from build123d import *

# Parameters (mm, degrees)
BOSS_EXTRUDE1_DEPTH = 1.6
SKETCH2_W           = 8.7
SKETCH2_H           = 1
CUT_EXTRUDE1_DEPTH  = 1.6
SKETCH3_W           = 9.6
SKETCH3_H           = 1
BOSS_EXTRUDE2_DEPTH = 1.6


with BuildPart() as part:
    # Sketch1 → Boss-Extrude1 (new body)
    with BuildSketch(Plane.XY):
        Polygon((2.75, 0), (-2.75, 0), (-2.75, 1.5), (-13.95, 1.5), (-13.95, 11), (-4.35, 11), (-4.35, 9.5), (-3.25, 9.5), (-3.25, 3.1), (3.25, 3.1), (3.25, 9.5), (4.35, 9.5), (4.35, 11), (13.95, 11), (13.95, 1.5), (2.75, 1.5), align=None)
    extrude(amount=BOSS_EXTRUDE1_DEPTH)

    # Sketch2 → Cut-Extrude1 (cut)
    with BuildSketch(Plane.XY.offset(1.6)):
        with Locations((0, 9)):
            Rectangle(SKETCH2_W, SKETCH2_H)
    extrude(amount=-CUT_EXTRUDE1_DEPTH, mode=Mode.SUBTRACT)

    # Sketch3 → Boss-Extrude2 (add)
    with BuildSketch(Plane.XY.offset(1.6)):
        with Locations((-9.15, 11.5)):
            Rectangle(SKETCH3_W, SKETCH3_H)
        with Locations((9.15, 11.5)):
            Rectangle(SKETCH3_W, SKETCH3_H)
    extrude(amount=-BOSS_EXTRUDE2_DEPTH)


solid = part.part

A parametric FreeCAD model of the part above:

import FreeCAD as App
import Part
import Sketcher

doc = App.newDocument("Part")
body = doc.addObject("PartDesign::Body", "Body")

sketch1 = body.newObject("Sketcher::SketchObject", "Sketch")
sketch1.AttachmentSupport = (doc.getObject("XY_Plane"), [""])
sketch1.MapMode = "FlatFace"
sketch1.addGeometry(Part.LineSegment(App.Vector(-2.8, 0, 0), App.Vector(2.8, 0, 0)), False)
sketch1.addGeometry(Part.LineSegment(App.Vector(2.8, 0, 0), App.Vector(2.8, 1.5, 0)), False)
sketch1.addGeometry(Part.LineSegment(App.Vector(2.8, 1.5, 0), App.Vector(13.9, 1.5, 0)), False)
sketch1.addGeometry(Part.LineSegment(App.Vector(13.9, 1.5, 0), App.Vector(13.9, 11, 0)), False)
sketch1.addGeometry(Part.LineSegment(App.Vector(13.9, 11, 0), App.Vector(4.3, 11, 0)), False)
sketch1.addGeometry(Part.LineSegment(App.Vector(4.3, 11, 0), App.Vector(4.3, 9.5, 0)), False)
sketch1.addGeometry(Part.LineSegment(App.Vector(4.3, 9.5, 0), App.Vector(3.2, 9.5, 0)), False)
sketch1.addGeometry(Part.LineSegment(App.Vector(3.2, 9.5, 0), App.Vector(3.2, 3.1, 0)), False)
sketch1.addGeometry(Part.LineSegment(App.Vector(3.2, 3.1, 0), App.Vector(-3.2, 3.1, 0)), False)
sketch1.addGeometry(Part.LineSegment(App.Vector(-3.2, 3.1, 0), App.Vector(-3.2, 9.5, 0)), False)
sketch1.addGeometry(Part.LineSegment(App.Vector(-3.2, 9.5, 0), App.Vector(-4.3, 9.5, 0)), False)
sketch1.addGeometry(Part.LineSegment(App.Vector(-4.3, 9.5, 0), App.Vector(-4.3, 11, 0)), False)
sketch1.addGeometry(Part.LineSegment(App.Vector(-4.3, 11, 0), App.Vector(-13.9, 11, 0)), False)
sketch1.addGeometry(Part.LineSegment(App.Vector(-13.9, 11, 0), App.Vector(-13.9, 1.5, 0)), False)
sketch1.addGeometry(Part.LineSegment(App.Vector(-13.9, 1.5, 0), App.Vector(-2.8, 1.5, 0)), False)
sketch1.addGeometry(Part.LineSegment(App.Vector(-2.8, 1.5, 0), App.Vector(-2.8, 0, 0)), False)
sketch1.addConstraint(Sketcher.Constraint("Coincident", 0, 2, 1, 1))
sketch1.addConstraint(Sketcher.Constraint("Coincident", 1, 2, 2, 1))
sketch1.addConstraint(Sketcher.Constraint("Coincident", 2, 2, 3, 1))
sketch1.addConstraint(Sketcher.Constraint("Coincident", 3, 2, 4, 1))
sketch1.addConstraint(Sketcher.Constraint("Coincident", 4, 2, 5, 1))
sketch1.addConstraint(Sketcher.Constraint("Coincident", 5, 2, 6, 1))
sketch1.addConstraint(Sketcher.Constraint("Coincident", 6, 2, 7, 1))
sketch1.addConstraint(Sketcher.Constraint("Coincident", 7, 2, 8, 1))
sketch1.addConstraint(Sketcher.Constraint("Coincident", 8, 2, 9, 1))
sketch1.addConstraint(Sketcher.Constraint("Coincident", 9, 2, 10, 1))
sketch1.addConstraint(Sketcher.Constraint("Coincident", 10, 2, 11, 1))
sketch1.addConstraint(Sketcher.Constraint("Coincident", 11, 2, 12, 1))
sketch1.addConstraint(Sketcher.Constraint("Coincident", 12, 2, 13, 1))
sketch1.addConstraint(Sketcher.Constraint("Coincident", 13, 2, 14, 1))
sketch1.addConstraint(Sketcher.Constraint("Coincident", 14, 2, 15, 1))
sketch1.addConstraint(Sketcher.Constraint("Coincident", 15, 2, 0, 1))
sketch1.addConstraint(Sketcher.Constraint("Horizontal", 0))
sketch1.addConstraint(Sketcher.Constraint("Vertical", 1))
sketch1.addConstraint(Sketcher.Constraint("Horizontal", 2))
sketch1.addConstraint(Sketcher.Constraint("Vertical", 3))
sketch1.addConstraint(Sketcher.Constraint("Horizontal", 4))
sketch1.addConstraint(Sketcher.Constraint("Vertical", 5))
sketch1.addConstraint(Sketcher.Constraint("Horizontal", 6))
sketch1.addConstraint(Sketcher.Constraint("Vertical", 7))
sketch1.addConstraint(Sketcher.Constraint("Horizontal", 8))
sketch1.addConstraint(Sketcher.Constraint("Vertical", 9))
sketch1.addConstraint(Sketcher.Constraint("Horizontal", 10))
sketch1.addConstraint(Sketcher.Constraint("Vertical", 11))
sketch1.addConstraint(Sketcher.Constraint("Horizontal", 12))
sketch1.addConstraint(Sketcher.Constraint("Vertical", 13))
sketch1.addConstraint(Sketcher.Constraint("Horizontal", 14))
sketch1.addConstraint(Sketcher.Constraint("Vertical", 15))
sketch1.addConstraint(Sketcher.Constraint("Symmetric", 0, 2, 15, 2, -1, 1))
sketch1.addConstraint(Sketcher.Constraint("Symmetric", 6, 2, 9, 2, -2))
sketch1.addConstraint(Sketcher.Constraint("Symmetric", 4, 2, 11, 2, -2))
sketch1.addConstraint(Sketcher.Constraint("Symmetric", 2, 2, 13, 2, -2))
sketch1.addConstraint(Sketcher.Constraint("Equal", 1, 5))
sketch1.addConstraint(Sketcher.Constraint("DistanceX", 0, 1, 0, 2, 5.5))
sketch1.addConstraint(Sketcher.Constraint("DistanceX", 2, 1, 2, 2, 11.2))
sketch1.addConstraint(Sketcher.Constraint("DistanceX", 4, 2, 4, 1, 9.6))
sketch1.addConstraint(Sketcher.Constraint("DistanceX", 6, 2, 6, 1, 1.1))
sketch1.addConstraint(Sketcher.Constraint("DistanceY", 1, 1, 1, 2, 1.5))
sketch1.addConstraint(Sketcher.Constraint("DistanceY", 3, 1, 3, 2, 9.5))
sketch1.addConstraint(Sketcher.Constraint("DistanceY", 7, 2, 7, 1, 6.4))
pad1 = body.newObject("PartDesign::Pad", "Pad")
pad1.Profile = sketch1
pad1.Length = 1.6

sketch2 = body.newObject("Sketcher::SketchObject", "Sketch001")
sketch2.AttachmentSupport = (doc.getObject("XY_Plane"), [""])
sketch2.MapMode = "FlatFace"
sketch2.AttachmentOffset = App.Placement(App.Vector(0, 0, 1.6), App.Rotation())
sketch2.addGeometry(Part.LineSegment(App.Vector(-4.3, 9.5, 0), App.Vector(-4.3, 8.5, 0)), False)
sketch2.addGeometry(Part.LineSegment(App.Vector(-4.3, 8.5, 0), App.Vector(4.3, 8.5, 0)), False)
sketch2.addGeometry(Part.LineSegment(App.Vector(4.3, 8.5, 0), App.Vector(4.3, 9.5, 0)), False)
sketch2.addGeometry(Part.LineSegment(App.Vector(4.3, 9.5, 0), App.Vector(-4.3, 9.5, 0)), False)
sketch2.addConstraint(Sketcher.Constraint("Coincident", 0, 2, 1, 1))
sketch2.addConstraint(Sketcher.Constraint("Coincident", 1, 2, 2, 1))
sketch2.addConstraint(Sketcher.Constraint("Coincident", 2, 2, 3, 1))
sketch2.addConstraint(Sketcher.Constraint("Coincident", 3, 2, 0, 1))
sketch2.addConstraint(Sketcher.Constraint("Vertical", 0))
sketch2.addConstraint(Sketcher.Constraint("Horizontal", 1))
sketch2.addConstraint(Sketcher.Constraint("Vertical", 2))
sketch2.addConstraint(Sketcher.Constraint("Horizontal", 3))
sketch2.addConstraint(Sketcher.Constraint("DistanceY", 0, 2, 0, 1, 1.0))
sketch2.addConstraint(Sketcher.Constraint("DistanceX", 1, 1, 1, 2, 8.7))
sketch2.addConstraint(Sketcher.Constraint("DistanceY", -1, 1, 0, 2, 8.5))
sketch2.addConstraint(Sketcher.Constraint("DistanceX", 0, 2, -1, 1, 4.35))
pocket1 = body.newObject("PartDesign::Pocket", "Pocket")
pocket1.Profile = sketch2
pocket1.Length = 1.6

sketch3 = body.newObject("Sketcher::SketchObject", "Sketch002")
sketch3.AttachmentSupport = (doc.getObject("XY_Plane"), [""])
sketch3.MapMode = "FlatFace"
sketch3.AttachmentOffset = App.Placement(App.Vector(0, 0, 1.6), App.Rotation())
sketch3.addGeometry(Part.LineSegment(App.Vector(-13.9, 12, 0), App.Vector(-13.9, 11, 0)), False)
sketch3.addGeometry(Part.LineSegment(App.Vector(-13.9, 11, 0), App.Vector(-4.3, 11, 0)), False)
sketch3.addGeometry(Part.LineSegment(App.Vector(-4.3, 11, 0), App.Vector(-4.3, 12, 0)), False)
sketch3.addGeometry(Part.LineSegment(App.Vector(-4.3, 12, 0), App.Vector(-13.9, 12, 0)), False)
sketch3.addGeometry(Part.LineSegment(App.Vector(4.3, 12, 0), App.Vector(4.3, 11, 0)), False)
sketch3.addGeometry(Part.LineSegment(App.Vector(4.3, 11, 0), App.Vector(13.9, 11, 0)), False)
sketch3.addGeometry(Part.LineSegment(App.Vector(13.9, 11, 0), App.Vector(13.9, 12, 0)), False)
sketch3.addGeometry(Part.LineSegment(App.Vector(13.9, 12, 0), App.Vector(4.3, 12, 0)), False)
sketch3.addConstraint(Sketcher.Constraint("Coincident", 0, 2, 1, 1))
sketch3.addConstraint(Sketcher.Constraint("Coincident", 1, 2, 2, 1))
sketch3.addConstraint(Sketcher.Constraint("Coincident", 2, 2, 3, 1))
sketch3.addConstraint(Sketcher.Constraint("Coincident", 3, 2, 0, 1))
sketch3.addConstraint(Sketcher.Constraint("Coincident", 4, 2, 5, 1))
sketch3.addConstraint(Sketcher.Constraint("Coincident", 5, 2, 6, 1))
sketch3.addConstraint(Sketcher.Constraint("Coincident", 6, 2, 7, 1))
sketch3.addConstraint(Sketcher.Constraint("Coincident", 7, 2, 4, 1))
sketch3.addConstraint(Sketcher.Constraint("Vertical", 0))
sketch3.addConstraint(Sketcher.Constraint("Horizontal", 1))
sketch3.addConstraint(Sketcher.Constraint("Vertical", 2))
sketch3.addConstraint(Sketcher.Constraint("Horizontal", 3))
sketch3.addConstraint(Sketcher.Constraint("Vertical", 4))
sketch3.addConstraint(Sketcher.Constraint("Horizontal", 5))
sketch3.addConstraint(Sketcher.Constraint("Vertical", 6))
sketch3.addConstraint(Sketcher.Constraint("Horizontal", 7))
sketch3.addConstraint(Sketcher.Constraint("Symmetric", 1, 2, 4, 2, -2))
sketch3.addConstraint(Sketcher.Constraint("Symmetric", 3, 2, 6, 2, -2))
sketch3.addConstraint(Sketcher.Constraint("DistanceY", 0, 2, 0, 1, 1.0))
sketch3.addConstraint(Sketcher.Constraint("DistanceX", 1, 1, 1, 2, 9.6))
sketch3.addConstraint(Sketcher.Constraint("DistanceY", -1, 1, 0, 2, 11.0))
sketch3.addConstraint(Sketcher.Constraint("DistanceX", 1, 2, 4, 2, 8.7))
pad2 = body.newObject("PartDesign::Pad", "Pad001")
pad2.Profile = sketch3
pad2.Length = 1.6
pad2.Reversed = True

doc.recompute()
